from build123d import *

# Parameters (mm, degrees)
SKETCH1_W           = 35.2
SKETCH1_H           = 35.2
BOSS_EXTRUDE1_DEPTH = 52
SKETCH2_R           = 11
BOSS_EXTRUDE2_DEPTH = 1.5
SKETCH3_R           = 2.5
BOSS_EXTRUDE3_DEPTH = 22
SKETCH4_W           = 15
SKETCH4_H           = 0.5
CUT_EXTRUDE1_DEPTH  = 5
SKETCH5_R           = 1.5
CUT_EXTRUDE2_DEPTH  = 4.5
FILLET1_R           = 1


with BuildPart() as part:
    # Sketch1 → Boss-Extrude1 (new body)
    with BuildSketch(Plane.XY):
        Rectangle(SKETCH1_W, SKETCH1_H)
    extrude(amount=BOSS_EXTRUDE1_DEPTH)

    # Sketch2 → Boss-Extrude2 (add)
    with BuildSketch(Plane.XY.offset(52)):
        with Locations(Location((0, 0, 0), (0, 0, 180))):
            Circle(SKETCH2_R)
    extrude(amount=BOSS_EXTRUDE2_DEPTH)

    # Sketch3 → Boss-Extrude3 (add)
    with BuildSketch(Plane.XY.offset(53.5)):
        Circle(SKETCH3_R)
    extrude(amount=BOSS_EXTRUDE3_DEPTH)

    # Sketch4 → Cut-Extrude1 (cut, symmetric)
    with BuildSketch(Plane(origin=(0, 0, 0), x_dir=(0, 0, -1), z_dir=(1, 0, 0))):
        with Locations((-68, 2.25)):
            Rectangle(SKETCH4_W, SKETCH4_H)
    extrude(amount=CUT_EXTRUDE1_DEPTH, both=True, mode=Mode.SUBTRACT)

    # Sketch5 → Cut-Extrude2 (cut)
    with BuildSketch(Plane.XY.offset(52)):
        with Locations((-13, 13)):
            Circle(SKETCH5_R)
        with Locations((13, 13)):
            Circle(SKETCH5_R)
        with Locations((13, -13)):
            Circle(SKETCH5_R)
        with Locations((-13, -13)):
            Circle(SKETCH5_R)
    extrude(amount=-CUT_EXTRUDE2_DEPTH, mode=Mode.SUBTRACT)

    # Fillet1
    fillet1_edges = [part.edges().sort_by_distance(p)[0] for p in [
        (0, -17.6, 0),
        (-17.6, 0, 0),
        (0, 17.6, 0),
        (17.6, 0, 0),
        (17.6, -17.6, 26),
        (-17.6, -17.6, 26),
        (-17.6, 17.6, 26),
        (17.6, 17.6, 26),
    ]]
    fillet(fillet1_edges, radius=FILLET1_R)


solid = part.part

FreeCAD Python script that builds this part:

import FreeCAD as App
import Part
import Sketcher
from FreeCAD import Vector


def edges_at(feature, points):
    """Names of the edges that pass closest to the given points."""
    edges = feature.Shape.Edges
    near = lambda p: min(range(len(edges)), key=lambda i: edges[i].distToShape(Part.Vertex(*p))[0])
    return sorted({f"Edge{near(p) + 1}" for p in points})

doc = App.newDocument("Part")
body = doc.addObject("PartDesign::Body", "Body")

# Sketch on XY plane
sketch1 = doc.addObject("Sketcher::SketchObject", "Sketch")
body.addObject(sketch1)
sketch1.AttachmentSupport = (doc.XY_Plane, [""])
sketch1.MapMode = "FlatFace"
sketch1.addGeometry([
    Part.LineSegment(Vector(-18, 18, 0), Vector(-18, -18, 0)),
    Part.LineSegment(Vector(-18, -18, 0), Vector(18, -18, 0)),
    Part.LineSegment(Vector(18, -18, 0), Vector(18, 18, 0)),
    Part.LineSegment(Vector(18, 18, 0), Vector(-18, 18, 0)),
], False)
sketch1.addConstraint([
    Sketcher.Constraint("Coincident", 0, 2, 1, 1),
    Sketcher.Constraint("Coincident", 1, 2, 2, 1),
    Sketcher.Constraint("Coincident", 2, 2, 3, 1),
    Sketcher.Constraint("Coincident", 3, 2, 0, 1),
    Sketcher.Constraint("Vertical", 0),
    Sketcher.Constraint("Horizontal", 1),
    Sketcher.Constraint("Vertical", 2),
    Sketcher.Constraint("Horizontal", 3),
    Sketcher.Constraint("Symmetric", 0, 2, 2, 2, -1, 1),
    Sketcher.Constraint("Equal", 3, 0),
    Sketcher.Constraint("DistanceX", 1, 1, 1, 2, 35.2),
])
pad1 = doc.addObject("PartDesign::Pad", "Pad")
body.addObject(pad1)
pad1.Profile = sketch1
pad1.Length = 52

# Sketch on XY plane
sketch2 = doc.addObject("Sketcher::SketchObject", "Sketch001")
body.addObject(sketch2)
sketch2.AttachmentSupport = (doc.XY_Plane, [""])
sketch2.MapMode = "FlatFace"
sketch2.AttachmentOffset = App.Placement(Vector(0, 0, 52), App.Rotation())
sketch2.addGeometry(Part.Circle(Vector(0, 0, 0), Vector(0, 0, 1), 11), False)
sketch2.addConstraint([
    Sketcher.Constraint("Coincident", 0, 3, -1, 1),
    Sketcher.Constraint("Diameter", 0, 22.0),
])
pad2 = doc.addObject("PartDesign::Pad", "Pad001")
body.addObject(pad2)
pad2.Profile = sketch2
pad2.Length = 1.5

# Sketch on XY plane
sketch3 = doc.addObject("Sketcher::SketchObject", "Sketch002")
body.addObject(sketch3)
sketch3.AttachmentSupport = (doc.XY_Plane, [""])
sketch3.MapMode = "FlatFace"
sketch3.AttachmentOffset = App.Placement(Vector(0, 0, 53.5), App.Rotation())
sketch3.addGeometry(Part.Circle(Vector(0, 0, 0), Vector(0, 0, 1), 2.5), False)
sketch3.addConstraint([
    Sketcher.Constraint("Coincident", 0, 3, -1, 1),
    Sketcher.Constraint("Diameter", 0, 5.0),
])
pad3 = doc.addObject("PartDesign::Pad", "Pad002")
body.addObject(pad3)
pad3.Profile = sketch3
pad3.Length = 22

# Sketch on YZ plane
sketch4 = doc.addObject("Sketcher::SketchObject", "Sketch003")
body.addObject(sketch4)
sketch4.AttachmentSupport = (doc.YZ_Plane, [""])
sketch4.MapMode = "FlatFace"
sketch4.addGeometry([
    Part.LineSegment(Vector(2.5, 75.5, 0), Vector(2, 75.5, 0)),
    Part.LineSegment(Vector(2, 75.5, 0), Vector(2, 60.5, 0)),
    Part.LineSegment(Vector(2, 60.5, 0), Vector(2.5, 60.5, 0)),
    Part.LineSegment(Vector(2.5, 60.5, 0), Vector(2.5, 75.5, 0)),
], False)
sketch4.addConstraint([
    Sketcher.Constraint("Coincident", 0, 2, 1, 1),
    Sketcher.Constraint("Coincident", 1, 2, 2, 1),
    Sketcher.Constraint("Coincident", 2, 2, 3, 1),
    Sketcher.Constraint("Coincident", 3, 2, 0, 1),
    Sketcher.Constraint("Horizontal", 0),
    Sketcher.Constraint("Vertical", 1),
    Sketcher.Constraint("Horizontal", 2),
    Sketcher.Constraint("Vertical", 3),
    Sketcher.Constraint("DistanceY", 1, 2, 1, 1, 15.0),
    Sketcher.Constraint("DistanceX", 0, 2, 0, 1, 0.5),
    Sketcher.Constraint("DistanceX", -1, 1, 0, 2, 2.0),
    Sketcher.Constraint("DistanceY", -1, 1, 0, 2, 75.5),
])
pocket1 = doc.addObject("PartDesign::Pocket", "Pocket")
body.addObject(pocket1)
pocket1.Profile = sketch4
pocket1.Length = 10
pocket1.Midplane = True

# Sketch on XY plane
sketch5 = doc.addObject("Sketcher::SketchObject", "Sketch004")
body.addObject(sketch5)
sketch5.AttachmentSupport = (doc.XY_Plane, [""])
sketch5.MapMode = "FlatFace"
sketch5.AttachmentOffset = App.Placement(Vector(0, 0, 52), App.Rotation())
sketch5.addGeometry([
    Part.Circle(Vector(-13, 13, 0), Vector(0, 0, 1), 1.5),
    Part.Circle(Vector(13, 13, 0), Vector(0, 0, 1), 1.5),
    Part.Circle(Vector(13, -13, 0), Vector(0, 0, 1), 1.5),
    Part.Circle(Vector(-13, -13, 0), Vector(0, 0, 1), 1.5),
], False)
sketch5.addConstraint([
    Sketcher.Constraint("Equal", 0, 1),
    Sketcher.Constraint("Equal", 1, 2),
    Sketcher.Constraint("Equal", 2, 3),
    Sketcher.Constraint("Symmetric", 0, 3, 2, 3, -1, 1),
    Sketcher.Constraint("Symmetric", 1, 3, 3, 3, -1, 1),
    Sketcher.Constraint("Symmetric", 0, 3, 1, 3, -2),
    Sketcher.Constraint("Diameter", 0, 3.0),
    Sketcher.Constraint("DistanceX", 0, 3, -1, 1, 13.0),
    Sketcher.Constraint("DistanceY", -1, 1, 0, 3, 13.0),
])
pocket2 = doc.addObject("PartDesign::Pocket", "Pocket001")
body.addObject(pocket2)
pocket2.Profile = sketch5
pocket2.Length = 4.5
doc.recompute()

fillet = doc.addObject("PartDesign::Fillet", "Fillet")
body.addObject(fillet)
fillet.Base = (pocket2, edges_at(pocket2, [
    (0, -17.6, 0),
    (-17.6, 0, 0),
    (0, 17.6, 0),
    (17.6, 0, 0),
    (17.6, -17.6, 26),
    (-17.6, -17.6, 26),
    (-17.6, 17.6, 26),
    (17.6, 17.6, 26),
]))
fillet.Radius = 1

doc.recompute()
